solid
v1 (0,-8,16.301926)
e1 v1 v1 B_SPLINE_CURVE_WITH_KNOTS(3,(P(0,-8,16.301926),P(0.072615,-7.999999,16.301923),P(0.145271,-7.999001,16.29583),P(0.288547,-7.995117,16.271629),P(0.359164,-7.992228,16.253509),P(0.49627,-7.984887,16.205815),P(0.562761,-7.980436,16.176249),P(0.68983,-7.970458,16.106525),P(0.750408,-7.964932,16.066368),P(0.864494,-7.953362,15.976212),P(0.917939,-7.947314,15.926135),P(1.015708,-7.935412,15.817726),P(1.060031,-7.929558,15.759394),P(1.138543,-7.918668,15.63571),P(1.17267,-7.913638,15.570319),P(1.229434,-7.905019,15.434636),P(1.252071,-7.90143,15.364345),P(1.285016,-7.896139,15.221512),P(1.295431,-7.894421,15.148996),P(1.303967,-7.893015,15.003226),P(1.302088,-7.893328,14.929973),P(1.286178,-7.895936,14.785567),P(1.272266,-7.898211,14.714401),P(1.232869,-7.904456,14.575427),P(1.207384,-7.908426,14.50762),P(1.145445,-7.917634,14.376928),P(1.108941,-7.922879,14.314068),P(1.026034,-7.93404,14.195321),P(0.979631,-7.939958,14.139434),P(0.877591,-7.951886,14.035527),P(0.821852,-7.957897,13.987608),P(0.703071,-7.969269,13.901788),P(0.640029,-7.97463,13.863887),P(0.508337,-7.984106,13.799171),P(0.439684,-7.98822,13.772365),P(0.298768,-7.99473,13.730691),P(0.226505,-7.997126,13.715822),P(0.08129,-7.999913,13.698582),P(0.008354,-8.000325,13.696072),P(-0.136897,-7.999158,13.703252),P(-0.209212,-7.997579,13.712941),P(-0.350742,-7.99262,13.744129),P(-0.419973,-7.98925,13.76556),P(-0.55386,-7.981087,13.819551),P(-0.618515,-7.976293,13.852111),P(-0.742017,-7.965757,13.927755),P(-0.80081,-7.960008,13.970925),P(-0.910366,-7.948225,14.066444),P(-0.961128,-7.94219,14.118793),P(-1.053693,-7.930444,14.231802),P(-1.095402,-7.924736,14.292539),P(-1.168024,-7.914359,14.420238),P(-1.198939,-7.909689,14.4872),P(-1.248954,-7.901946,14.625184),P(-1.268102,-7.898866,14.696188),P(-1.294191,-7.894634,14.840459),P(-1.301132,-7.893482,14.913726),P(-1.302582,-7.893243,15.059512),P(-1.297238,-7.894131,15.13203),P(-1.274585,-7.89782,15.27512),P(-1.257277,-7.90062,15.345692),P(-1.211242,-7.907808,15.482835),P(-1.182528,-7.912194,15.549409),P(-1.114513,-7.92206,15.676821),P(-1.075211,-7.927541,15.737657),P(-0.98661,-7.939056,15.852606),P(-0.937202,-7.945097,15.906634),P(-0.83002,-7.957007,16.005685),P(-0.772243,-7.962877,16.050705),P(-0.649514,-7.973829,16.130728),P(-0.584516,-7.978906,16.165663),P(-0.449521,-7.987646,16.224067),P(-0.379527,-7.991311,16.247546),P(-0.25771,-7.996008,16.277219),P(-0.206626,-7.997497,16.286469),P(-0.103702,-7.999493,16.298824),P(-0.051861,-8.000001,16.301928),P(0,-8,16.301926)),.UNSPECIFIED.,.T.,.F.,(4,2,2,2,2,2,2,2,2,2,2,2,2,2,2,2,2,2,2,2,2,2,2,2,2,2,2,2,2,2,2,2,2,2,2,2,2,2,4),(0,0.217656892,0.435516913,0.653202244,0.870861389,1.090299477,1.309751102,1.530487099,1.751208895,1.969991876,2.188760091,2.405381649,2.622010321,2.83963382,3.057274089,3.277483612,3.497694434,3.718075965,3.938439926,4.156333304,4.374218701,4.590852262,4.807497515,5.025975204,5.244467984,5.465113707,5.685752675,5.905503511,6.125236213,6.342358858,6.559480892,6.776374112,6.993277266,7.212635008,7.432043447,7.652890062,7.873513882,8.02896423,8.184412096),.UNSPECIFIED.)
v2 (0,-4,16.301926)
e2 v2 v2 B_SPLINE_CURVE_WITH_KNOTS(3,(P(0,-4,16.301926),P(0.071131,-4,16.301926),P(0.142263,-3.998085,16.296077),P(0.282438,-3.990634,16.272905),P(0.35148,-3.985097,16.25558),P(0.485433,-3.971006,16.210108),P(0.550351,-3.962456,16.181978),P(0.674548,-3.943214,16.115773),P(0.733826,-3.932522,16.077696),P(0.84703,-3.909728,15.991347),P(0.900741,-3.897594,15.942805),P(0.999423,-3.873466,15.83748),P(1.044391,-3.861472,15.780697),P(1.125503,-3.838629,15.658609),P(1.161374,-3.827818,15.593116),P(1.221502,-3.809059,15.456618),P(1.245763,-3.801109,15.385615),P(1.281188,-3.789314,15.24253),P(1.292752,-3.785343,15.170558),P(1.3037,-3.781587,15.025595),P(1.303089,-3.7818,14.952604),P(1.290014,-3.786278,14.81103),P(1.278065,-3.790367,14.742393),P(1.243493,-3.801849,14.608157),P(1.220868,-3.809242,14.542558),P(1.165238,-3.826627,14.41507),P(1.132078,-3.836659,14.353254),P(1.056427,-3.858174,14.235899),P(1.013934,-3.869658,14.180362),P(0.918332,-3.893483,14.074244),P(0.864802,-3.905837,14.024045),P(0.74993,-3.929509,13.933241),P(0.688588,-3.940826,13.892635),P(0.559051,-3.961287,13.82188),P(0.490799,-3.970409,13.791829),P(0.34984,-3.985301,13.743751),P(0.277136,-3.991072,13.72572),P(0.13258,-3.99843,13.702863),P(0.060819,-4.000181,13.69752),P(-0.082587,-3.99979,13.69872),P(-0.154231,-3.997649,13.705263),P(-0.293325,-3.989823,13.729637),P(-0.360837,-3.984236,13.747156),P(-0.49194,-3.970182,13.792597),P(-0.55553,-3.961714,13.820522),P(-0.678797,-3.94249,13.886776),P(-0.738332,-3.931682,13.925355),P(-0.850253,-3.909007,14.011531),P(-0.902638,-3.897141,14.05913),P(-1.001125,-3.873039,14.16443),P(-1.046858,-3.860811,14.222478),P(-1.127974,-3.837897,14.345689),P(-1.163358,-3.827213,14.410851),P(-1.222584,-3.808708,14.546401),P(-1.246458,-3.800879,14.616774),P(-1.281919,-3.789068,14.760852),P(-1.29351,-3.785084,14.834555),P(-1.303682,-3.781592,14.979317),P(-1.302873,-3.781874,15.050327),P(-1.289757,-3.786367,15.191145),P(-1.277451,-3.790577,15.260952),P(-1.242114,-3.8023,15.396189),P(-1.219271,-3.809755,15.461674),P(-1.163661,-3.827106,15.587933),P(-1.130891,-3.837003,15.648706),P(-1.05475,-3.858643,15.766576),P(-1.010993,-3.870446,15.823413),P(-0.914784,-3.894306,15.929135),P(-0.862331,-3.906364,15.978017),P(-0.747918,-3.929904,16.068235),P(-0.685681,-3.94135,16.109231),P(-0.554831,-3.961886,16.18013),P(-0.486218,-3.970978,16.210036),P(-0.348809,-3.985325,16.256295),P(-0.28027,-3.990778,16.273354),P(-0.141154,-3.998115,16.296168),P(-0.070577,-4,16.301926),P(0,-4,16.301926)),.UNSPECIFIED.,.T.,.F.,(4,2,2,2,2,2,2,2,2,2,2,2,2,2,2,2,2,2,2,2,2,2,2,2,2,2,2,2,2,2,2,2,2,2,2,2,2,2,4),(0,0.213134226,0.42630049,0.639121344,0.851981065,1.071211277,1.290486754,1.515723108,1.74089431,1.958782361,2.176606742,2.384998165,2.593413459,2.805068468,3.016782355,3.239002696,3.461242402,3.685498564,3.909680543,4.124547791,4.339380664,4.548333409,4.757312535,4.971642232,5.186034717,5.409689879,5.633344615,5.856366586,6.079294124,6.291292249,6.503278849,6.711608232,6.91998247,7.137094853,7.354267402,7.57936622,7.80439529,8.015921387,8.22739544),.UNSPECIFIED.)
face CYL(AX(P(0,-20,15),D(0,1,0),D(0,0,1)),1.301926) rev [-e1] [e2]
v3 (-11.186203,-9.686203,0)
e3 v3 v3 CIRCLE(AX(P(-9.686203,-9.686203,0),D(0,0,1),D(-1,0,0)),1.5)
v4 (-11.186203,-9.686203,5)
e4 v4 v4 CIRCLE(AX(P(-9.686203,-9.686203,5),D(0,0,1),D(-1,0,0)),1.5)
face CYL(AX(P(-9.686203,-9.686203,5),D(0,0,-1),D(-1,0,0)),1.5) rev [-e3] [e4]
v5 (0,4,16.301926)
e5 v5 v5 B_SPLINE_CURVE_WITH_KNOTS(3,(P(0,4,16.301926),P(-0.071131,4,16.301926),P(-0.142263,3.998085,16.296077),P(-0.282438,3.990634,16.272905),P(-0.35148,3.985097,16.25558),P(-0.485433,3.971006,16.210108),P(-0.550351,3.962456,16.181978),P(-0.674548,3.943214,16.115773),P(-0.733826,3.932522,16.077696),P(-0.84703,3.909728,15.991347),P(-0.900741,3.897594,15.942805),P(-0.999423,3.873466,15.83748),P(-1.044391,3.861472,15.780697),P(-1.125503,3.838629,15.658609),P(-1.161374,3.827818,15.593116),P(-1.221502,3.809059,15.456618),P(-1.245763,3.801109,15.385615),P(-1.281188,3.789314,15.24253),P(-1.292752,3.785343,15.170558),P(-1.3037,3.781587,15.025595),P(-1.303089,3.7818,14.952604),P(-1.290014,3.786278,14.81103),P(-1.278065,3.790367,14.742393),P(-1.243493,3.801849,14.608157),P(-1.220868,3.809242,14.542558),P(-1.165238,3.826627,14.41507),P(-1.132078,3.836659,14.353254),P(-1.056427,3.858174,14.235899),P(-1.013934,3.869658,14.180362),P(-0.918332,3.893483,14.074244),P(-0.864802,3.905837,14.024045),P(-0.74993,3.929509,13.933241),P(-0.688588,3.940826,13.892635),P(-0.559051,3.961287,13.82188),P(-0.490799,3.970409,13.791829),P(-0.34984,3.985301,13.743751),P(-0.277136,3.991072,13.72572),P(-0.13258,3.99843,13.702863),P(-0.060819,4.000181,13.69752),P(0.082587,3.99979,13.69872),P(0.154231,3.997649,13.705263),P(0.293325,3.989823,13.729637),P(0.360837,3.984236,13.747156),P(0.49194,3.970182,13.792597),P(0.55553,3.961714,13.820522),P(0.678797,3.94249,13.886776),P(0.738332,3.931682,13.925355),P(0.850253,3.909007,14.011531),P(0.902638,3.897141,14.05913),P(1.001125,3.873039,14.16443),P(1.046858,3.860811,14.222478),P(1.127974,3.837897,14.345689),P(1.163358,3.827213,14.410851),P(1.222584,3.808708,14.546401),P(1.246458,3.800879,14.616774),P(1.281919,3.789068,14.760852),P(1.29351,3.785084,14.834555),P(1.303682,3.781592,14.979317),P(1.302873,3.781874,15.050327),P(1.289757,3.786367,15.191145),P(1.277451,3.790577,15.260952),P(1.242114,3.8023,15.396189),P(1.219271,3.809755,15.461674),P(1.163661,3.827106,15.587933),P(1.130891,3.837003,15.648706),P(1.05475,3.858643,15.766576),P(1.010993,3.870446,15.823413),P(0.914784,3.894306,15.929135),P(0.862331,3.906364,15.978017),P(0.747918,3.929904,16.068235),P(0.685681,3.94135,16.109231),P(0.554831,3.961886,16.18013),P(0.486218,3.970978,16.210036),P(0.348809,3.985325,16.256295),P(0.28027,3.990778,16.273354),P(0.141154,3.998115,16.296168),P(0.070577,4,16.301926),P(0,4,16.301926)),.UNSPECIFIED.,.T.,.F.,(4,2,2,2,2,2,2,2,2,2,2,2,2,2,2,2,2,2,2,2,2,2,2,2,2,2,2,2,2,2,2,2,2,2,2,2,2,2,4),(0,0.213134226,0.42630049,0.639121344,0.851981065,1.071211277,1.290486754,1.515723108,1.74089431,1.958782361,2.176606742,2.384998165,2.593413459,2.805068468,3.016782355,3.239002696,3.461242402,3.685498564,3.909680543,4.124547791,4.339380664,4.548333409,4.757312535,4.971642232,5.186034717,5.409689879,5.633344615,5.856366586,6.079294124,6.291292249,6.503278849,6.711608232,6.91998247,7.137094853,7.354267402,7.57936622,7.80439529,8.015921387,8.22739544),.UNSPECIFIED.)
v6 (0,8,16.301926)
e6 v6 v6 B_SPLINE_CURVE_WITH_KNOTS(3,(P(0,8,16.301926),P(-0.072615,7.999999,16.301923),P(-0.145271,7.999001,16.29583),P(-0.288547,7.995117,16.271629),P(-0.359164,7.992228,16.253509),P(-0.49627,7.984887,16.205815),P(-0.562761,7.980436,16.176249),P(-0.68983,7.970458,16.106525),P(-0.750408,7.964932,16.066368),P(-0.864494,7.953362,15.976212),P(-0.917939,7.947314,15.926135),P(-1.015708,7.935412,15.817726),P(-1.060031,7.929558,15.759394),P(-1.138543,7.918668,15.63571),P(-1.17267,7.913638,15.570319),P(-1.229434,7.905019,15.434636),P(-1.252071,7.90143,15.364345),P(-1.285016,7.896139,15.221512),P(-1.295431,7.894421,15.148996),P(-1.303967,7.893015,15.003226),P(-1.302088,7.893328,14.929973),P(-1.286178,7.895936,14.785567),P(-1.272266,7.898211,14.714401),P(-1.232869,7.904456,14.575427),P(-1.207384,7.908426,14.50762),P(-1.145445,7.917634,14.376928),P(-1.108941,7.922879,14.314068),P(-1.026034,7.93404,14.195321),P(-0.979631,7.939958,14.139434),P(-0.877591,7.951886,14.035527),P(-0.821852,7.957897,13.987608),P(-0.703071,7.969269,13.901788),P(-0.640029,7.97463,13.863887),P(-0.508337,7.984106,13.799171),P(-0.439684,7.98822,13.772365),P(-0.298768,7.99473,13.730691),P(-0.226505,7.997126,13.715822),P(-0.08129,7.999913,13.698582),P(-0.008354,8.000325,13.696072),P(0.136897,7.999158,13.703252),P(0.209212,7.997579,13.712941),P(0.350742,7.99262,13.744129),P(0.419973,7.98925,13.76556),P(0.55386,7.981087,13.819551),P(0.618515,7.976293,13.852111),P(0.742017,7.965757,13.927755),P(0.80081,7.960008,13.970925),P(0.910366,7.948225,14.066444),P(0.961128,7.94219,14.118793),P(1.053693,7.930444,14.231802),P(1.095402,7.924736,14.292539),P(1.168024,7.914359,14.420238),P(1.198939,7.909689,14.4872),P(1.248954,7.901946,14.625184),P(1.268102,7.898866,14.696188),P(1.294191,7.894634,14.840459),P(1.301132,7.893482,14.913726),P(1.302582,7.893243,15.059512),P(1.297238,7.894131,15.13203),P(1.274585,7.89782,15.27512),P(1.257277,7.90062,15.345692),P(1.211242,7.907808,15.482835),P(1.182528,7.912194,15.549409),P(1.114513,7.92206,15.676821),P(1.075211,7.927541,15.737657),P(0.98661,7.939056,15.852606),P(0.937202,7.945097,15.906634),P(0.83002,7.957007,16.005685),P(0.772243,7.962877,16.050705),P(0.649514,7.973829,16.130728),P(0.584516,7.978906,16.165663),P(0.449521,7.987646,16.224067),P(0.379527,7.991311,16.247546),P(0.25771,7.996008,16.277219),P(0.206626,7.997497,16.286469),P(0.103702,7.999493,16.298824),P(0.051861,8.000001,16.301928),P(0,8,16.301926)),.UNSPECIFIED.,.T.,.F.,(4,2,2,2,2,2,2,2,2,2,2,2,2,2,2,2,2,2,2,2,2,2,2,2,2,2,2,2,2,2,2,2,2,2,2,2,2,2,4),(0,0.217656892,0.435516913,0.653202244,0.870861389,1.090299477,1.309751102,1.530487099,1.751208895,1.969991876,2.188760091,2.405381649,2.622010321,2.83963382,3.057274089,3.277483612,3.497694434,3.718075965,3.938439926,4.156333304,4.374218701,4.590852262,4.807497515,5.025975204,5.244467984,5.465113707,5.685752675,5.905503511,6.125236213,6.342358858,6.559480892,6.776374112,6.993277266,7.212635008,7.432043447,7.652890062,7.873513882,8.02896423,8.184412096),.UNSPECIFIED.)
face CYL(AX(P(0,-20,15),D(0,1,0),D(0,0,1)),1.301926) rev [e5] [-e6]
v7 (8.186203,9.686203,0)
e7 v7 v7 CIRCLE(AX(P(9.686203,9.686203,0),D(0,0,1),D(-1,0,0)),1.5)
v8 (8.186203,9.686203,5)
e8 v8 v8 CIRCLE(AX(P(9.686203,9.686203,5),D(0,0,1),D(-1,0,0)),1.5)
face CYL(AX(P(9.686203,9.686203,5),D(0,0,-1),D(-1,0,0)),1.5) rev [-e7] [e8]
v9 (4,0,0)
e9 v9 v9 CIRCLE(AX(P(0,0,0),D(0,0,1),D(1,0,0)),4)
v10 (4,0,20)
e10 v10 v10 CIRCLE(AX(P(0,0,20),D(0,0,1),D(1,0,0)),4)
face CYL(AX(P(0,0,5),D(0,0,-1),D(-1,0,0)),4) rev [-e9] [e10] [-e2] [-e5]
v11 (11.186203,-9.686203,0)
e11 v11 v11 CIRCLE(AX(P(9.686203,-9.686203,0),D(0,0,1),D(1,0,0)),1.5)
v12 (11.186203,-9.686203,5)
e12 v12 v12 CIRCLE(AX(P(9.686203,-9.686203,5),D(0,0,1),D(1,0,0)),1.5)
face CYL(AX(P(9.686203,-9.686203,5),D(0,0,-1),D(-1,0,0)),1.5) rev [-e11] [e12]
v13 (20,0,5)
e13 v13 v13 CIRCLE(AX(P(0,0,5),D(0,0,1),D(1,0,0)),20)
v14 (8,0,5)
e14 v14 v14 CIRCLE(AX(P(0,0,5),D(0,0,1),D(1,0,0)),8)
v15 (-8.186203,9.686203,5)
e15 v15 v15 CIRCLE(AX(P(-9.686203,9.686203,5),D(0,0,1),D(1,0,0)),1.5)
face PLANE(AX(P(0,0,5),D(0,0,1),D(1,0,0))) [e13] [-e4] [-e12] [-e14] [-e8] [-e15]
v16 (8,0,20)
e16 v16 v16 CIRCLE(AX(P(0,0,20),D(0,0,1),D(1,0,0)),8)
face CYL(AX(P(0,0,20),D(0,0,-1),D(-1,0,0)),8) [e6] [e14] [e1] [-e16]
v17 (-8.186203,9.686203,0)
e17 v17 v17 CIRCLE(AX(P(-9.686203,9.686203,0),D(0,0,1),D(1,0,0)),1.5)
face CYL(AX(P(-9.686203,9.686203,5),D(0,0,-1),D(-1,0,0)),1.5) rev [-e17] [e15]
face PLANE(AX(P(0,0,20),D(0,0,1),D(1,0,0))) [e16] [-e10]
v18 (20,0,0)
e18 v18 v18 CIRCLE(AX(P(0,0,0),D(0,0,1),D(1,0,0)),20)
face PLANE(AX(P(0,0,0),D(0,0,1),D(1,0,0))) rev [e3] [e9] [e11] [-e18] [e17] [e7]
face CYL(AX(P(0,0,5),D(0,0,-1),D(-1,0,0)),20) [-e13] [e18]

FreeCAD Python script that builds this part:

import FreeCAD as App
import Part
import Sketcher

V = App.Vector

doc = App.newDocument("Part")
body = doc.addObject("PartDesign::Body", "Body")

# Sketch on XY plane
sketch1 = body.newObject("Sketcher::SketchObject", "Sketch")
sketch1.AttachmentSupport = (doc.getObject("XY_Plane"), [""])
sketch1.MapMode = "FlatFace"
sketch1.addGeometry([
    Part.Circle(V(0, 0, 0), V(0, 0, 1), 20),  # 0
    Part.Circle(V(-9.7, -9.7, 0), V(0, 0, 1), 1.5),  # 1
    Part.Circle(V(9.7, -9.7, 0), V(0, 0, 1), 1.5),  # 2
    Part.Circle(V(0, 0, 0), V(0, 0, 1), 4),  # 3
    Part.Circle(V(-9.7, 9.7, 0), V(0, 0, 1), 1.5),  # 4
    Part.Circle(V(9.7, 9.7, 0), V(0, 0, 1), 1.5),  # 5
], False)
sketch1.addConstraint([
    Sketcher.Constraint("Coincident", 0, 3, -1, 1),
    Sketcher.Constraint("Coincident", 3, 3, -1, 1),
    Sketcher.Constraint("Equal", 1, 2),
    Sketcher.Constraint("Equal", 2, 4),
    Sketcher.Constraint("Equal", 4, 5),
    Sketcher.Constraint("Symmetric", 2, 3, 4, 3, -1, 1),
    Sketcher.Constraint("Symmetric", 1, 3, 5, 3, -1, 1),
    Sketcher.Constraint("Symmetric", 1, 3, 2, 3, -2),
    Sketcher.Constraint("Diameter", 0, 40.0),
    Sketcher.Constraint("Diameter", 1, 3.0),
    Sketcher.Constraint("Diameter", 3, 8.0),
    Sketcher.Constraint("DistanceX", 1, 3, -1, 1, 9.686203),
    Sketcher.Constraint("DistanceY", 1, 3, -1, 1, 9.686203),
])
pad1 = body.newObject("PartDesign::Pad", "Pad")
pad1.Profile = sketch1
pad1.Length = 5

# Sketch on XY plane
sketch2 = body.newObject("Sketcher::SketchObject", "Sketch001")
sketch2.AttachmentSupport = (doc.getObject("XY_Plane"), [""])
sketch2.MapMode = "FlatFace"
sketch2.AttachmentOffset = App.Placement(V(0, 0, 5), App.Rotation())
sketch2.addGeometry([
    Part.Circle(V(0, 0, 0), V(0, 0, 1), 8),
    Part.Circle(V(0, 0, 0), V(0, 0, 1), 4),
], False)
sketch2.addConstraint([
    Sketcher.Constraint("Coincident", 0, 3, -1, 1),
    Sketcher.Constraint("Coincident", 1, 3, -1, 1),
    Sketcher.Constraint("Diameter", 0, 16.0),
    Sketcher.Constraint("Diameter", 1, 8.0),
])
pad2 = body.newObject("PartDesign::Pad", "Pad001")
pad2.Profile = sketch2
pad2.Length = 15

# Sketch on XZ plane
sketch3 = body.newObject("Sketcher::SketchObject", "Sketch002")
sketch3.AttachmentSupport = (doc.getObject("XZ_Plane"), [""])
sketch3.MapMode = "FlatFace"
sketch3.addGeometry(Part.Circle(V(0, 15, 0), V(0, 0, 1), 1.3), False)
sketch3.addConstraint([
    Sketcher.Constraint("PointOnObject", 0, 3, -2),
    Sketcher.Constraint("DistanceY", -1, 1, 0, 3, 15.0),
    Sketcher.Constraint("Diameter", 0, 2.603851),
])
pocket1 = body.newObject("PartDesign::Pocket", "Pocket")
pocket1.Profile = sketch3
pocket1.Type = "ThroughAll"
pocket1.Midplane = True

doc.recompute()
